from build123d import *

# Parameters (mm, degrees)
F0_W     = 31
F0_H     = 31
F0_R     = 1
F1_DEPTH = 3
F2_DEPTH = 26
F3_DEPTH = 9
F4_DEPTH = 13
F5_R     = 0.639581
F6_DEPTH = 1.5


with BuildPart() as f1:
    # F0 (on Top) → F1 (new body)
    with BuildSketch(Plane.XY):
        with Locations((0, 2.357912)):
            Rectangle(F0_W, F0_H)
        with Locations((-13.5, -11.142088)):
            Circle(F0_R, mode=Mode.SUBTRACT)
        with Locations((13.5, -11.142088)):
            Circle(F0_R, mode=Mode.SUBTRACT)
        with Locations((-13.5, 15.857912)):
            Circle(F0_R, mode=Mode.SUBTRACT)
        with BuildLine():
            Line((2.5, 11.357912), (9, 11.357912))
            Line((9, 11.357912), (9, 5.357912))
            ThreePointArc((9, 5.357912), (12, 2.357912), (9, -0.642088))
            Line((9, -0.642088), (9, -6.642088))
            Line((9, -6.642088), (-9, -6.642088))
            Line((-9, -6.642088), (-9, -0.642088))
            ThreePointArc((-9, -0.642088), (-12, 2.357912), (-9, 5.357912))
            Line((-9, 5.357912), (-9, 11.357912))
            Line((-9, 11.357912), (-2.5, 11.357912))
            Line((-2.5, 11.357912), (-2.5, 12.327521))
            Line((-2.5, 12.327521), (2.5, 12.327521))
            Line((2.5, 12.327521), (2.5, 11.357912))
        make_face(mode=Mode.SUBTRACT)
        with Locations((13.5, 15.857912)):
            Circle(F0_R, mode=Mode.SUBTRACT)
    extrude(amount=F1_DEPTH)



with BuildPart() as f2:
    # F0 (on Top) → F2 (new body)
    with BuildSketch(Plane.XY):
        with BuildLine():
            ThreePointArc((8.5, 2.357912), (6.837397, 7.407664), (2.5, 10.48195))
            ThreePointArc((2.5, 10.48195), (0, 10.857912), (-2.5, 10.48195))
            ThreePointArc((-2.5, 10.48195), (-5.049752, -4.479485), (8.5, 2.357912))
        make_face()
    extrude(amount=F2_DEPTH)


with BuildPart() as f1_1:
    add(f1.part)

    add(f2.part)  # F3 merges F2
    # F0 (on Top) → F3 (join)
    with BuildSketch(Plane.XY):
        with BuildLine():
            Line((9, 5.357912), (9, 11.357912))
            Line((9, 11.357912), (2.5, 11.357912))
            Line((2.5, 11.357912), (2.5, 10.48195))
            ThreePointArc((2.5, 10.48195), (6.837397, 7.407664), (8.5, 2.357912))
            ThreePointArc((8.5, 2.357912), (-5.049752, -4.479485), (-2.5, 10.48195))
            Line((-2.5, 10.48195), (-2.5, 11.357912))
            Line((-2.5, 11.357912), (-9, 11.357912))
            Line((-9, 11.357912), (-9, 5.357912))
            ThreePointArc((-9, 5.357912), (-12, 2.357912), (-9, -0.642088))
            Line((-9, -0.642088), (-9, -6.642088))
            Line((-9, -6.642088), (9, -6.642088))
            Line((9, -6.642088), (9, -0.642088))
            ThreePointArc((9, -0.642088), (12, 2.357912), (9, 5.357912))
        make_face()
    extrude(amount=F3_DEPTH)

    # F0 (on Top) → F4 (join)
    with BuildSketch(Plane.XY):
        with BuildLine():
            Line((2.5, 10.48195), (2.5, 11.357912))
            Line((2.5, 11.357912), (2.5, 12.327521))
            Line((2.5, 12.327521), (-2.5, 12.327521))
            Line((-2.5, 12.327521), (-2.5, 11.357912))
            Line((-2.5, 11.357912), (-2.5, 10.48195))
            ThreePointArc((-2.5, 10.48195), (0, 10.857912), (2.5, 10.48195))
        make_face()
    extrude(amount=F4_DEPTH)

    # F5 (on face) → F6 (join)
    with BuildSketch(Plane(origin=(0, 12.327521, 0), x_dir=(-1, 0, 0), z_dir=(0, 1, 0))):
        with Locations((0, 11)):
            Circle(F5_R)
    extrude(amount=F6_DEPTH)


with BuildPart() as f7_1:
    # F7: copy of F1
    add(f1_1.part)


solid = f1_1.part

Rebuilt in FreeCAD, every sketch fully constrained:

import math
import FreeCAD as App
import Part
import Sketcher

V = App.Vector
Q = App.Units.Quantity


def add_polygon(sketch, points):
    """Adds a closed chain of lines whose ends are joined by coincident constraints."""
    first, n = sketch.GeometryCount, len(points)
    for a, b in zip(points, points[1:] + points[:1]):
        sketch.addGeometry(Part.LineSegment(App.Vector(*a, 0), App.Vector(*b, 0)), False)
    for i in range(n):
        sketch.addConstraint(Sketcher.Constraint("Coincident", first + i, 2, first + (i + 1) % n, 1))

doc = App.newDocument("Part")
params = doc.addObject("Spreadsheet::Sheet", "Params")
for row, (alias, value) in enumerate([
    ("sketch1_diameter", "2 mm"),
    ("sketch1_radius", "3 mm"),
    ("sketch1_width", "31 mm"),
    ("sketch1_width2", "18 mm"),
    ("sketch1_width3", "5 mm"),
    ("pad1_length", "3 mm"),
    ("sketch2_radius", "8.500001 mm"),
    ("pad2_length", "26 mm"),
    ("sketch3_radius", "3 mm"),
    ("sketch3_radius2", "8.500001 mm"),
    ("sketch3_width", "18 mm"),
    ("sketch3_height", "6 mm"),
    ("sketch3_width2", "6.5 mm"),
    ("pad3_length", "9 mm"),
    ("sketch4_width", "5 mm"),
    ("pad4_length", "13 mm"),
    ("pad5_length", "1.5 mm"),
], start=1):
    params.set(f"A{row}", alias)
    params.set(f"B{row}", "=" + value)
    params.setAlias(f"B{row}", alias)

body = doc.addObject("PartDesign::Body", "Body")

sketch1 = body.newObject("Sketcher::SketchObject", "Sketch")
sketch1.AttachmentSupport = (doc.getObject("XY_Plane"), [""])
sketch1.MapMode = "FlatFace"
add_polygon(sketch1, [(-15.5, 17.9), (-15.5, -13.1), (15.5, -13.1), (15.5, 17.9)])
sketch1.addGeometry(Part.Circle(V(-13.5, -11.1, 0), V(0, 0, 1), 1), False)
sketch1.addGeometry(Part.Circle(V(13.5, -11.1, 0), V(0, 0, 1), 1), False)
sketch1.addGeometry(Part.Circle(V(-13.5, 15.9, 0), V(0, 0, 1), 1), False)
sketch1.addGeometry(Part.LineSegment(V(2.5, 12.3, 0), V(2.5, 11.4, 0)), False)
sketch1.addGeometry(Part.LineSegment(V(2.5, 11.4, 0), V(9, 11.4, 0)), False)
sketch1.addGeometry(Part.LineSegment(V(9, 11.4, 0), V(9, 5.4, 0)), False)
sketch1.addGeometry(Part.ArcOfCircle(Part.Circle(V(9, 2.4, 0), V(0, 0, 1), 3), math.radians(-90), math.radians(90)), False)
sketch1.addGeometry(Part.LineSegment(V(9, -0.6, 0), V(9, -6.6, 0)), False)
sketch1.addGeometry(Part.LineSegment(V(9, -6.6, 0), V(-9, -6.6, 0)), False)
sketch1.addGeometry(Part.LineSegment(V(-9, -6.6, 0), V(-9, -0.6, 0)), False)
sketch1.addGeometry(Part.ArcOfCircle(Part.Circle(V(-9, 2.4, 0), V(0, 0, 1), 3), math.radians(90), math.radians(270)), False)
sketch1.addGeometry(Part.LineSegment(V(-9, 5.4, 0), V(-9, 11.4, 0)), False)
sketch1.addGeometry(Part.LineSegment(V(-9, 11.4, 0), V(-2.5, 11.4, 0)), False)
sketch1.addGeometry(Part.LineSegment(V(-2.5, 11.4, 0), V(-2.5, 12.3, 0)), False)
sketch1.addGeometry(Part.LineSegment(V(-2.5, 12.3, 0), V(2.5, 12.3, 0)), False)
sketch1.addGeometry(Part.Circle(V(13.5, 15.9, 0), V(0, 0, 1), 1), False)
sketch1.addConstraint([
    Sketcher.Constraint("Coincident", 7, 2, 8, 1),
    Sketcher.Constraint("Coincident", 8, 2, 9, 1),
    Sketcher.Constraint("Coincident", 9, 2, 10, 2),
    Sketcher.Constraint("Coincident", 10, 1, 11, 1),
    Sketcher.Constraint("Coincident", 11, 2, 12, 1),
    Sketcher.Constraint("Coincident", 12, 2, 13, 1),
    Sketcher.Constraint("Coincident", 13, 2, 14, 2),
    Sketcher.Constraint("Coincident", 14, 1, 15, 1),
    Sketcher.Constraint("Coincident", 15, 2, 16, 1),
    Sketcher.Constraint("Coincident", 16, 2, 17, 1),
    Sketcher.Constraint("Coincident", 17, 2, 18, 1),
    Sketcher.Constraint("Coincident", 18, 2, 7, 1),
    Sketcher.Constraint("Vertical", 0),
    Sketcher.Constraint("Horizontal", 1),
    Sketcher.Constraint("Vertical", 2),
    Sketcher.Constraint("Horizontal", 3),
    Sketcher.Constraint("Vertical", 7),
    Sketcher.Constraint("Horizontal", 8),
    Sketcher.Constraint("Vertical", 9),
    Sketcher.Constraint("Vertical", 11),
    Sketcher.Constraint("Horizontal", 12),
    Sketcher.Constraint("Vertical", 13),
    Sketcher.Constraint("Vertical", 15),
    Sketcher.Constraint("Horizontal", 16),
    Sketcher.Constraint("Vertical", 17),
    Sketcher.Constraint("Horizontal", 18),
    Sketcher.Constraint("Equal", 4, 5),
    Sketcher.Constraint("Equal", 5, 6),
    Sketcher.Constraint("Equal", 10, 14),
    Sketcher.Constraint("Equal", 6, 19),
    Sketcher.Constraint("Symmetric", 4, 3, 5, 3, -2),
    Sketcher.Constraint("Symmetric", 10, 3, 14, 3, -2),
    Sketcher.Constraint("Symmetric", 6, 3, 19, 3, -2),
    Sketcher.Constraint("Symmetric", 8, 2, 15, 2, -2),
    Sketcher.Constraint("Vertical", 4, 3, 6, 3),
    Sketcher.Constraint("Vertical", 10, 3, 8, 2),
    Sketcher.Constraint("Vertical", 9, 2, 10, 1),
    Sketcher.Constraint("Vertical", 14, 3, 12, 2),
    Sketcher.Constraint("Equal", 8, 16),
    Sketcher.Constraint("Equal", 3, 0),
    Sketcher.Constraint("Equal", 9, 11),
    Sketcher.Constraint("Diameter", 4, Q("2 mm")),
    Sketcher.Constraint("Radius", 10, Q("3 mm")),
    Sketcher.Constraint("DistanceX", 1, 1, 1, 2, Q("31 mm")),
    Sketcher.Constraint("DistanceX", 12, 2, 12, 1, Q("18 mm")),
    Sketcher.Constraint("DistanceX", 18, 1, 18, 2, Q("5 mm")),
    Sketcher.Constraint("DistanceY", 9, 2, 9, 1, Q("6 mm")),
    Sketcher.Constraint("DistanceX", 4, 3, 5, 3, Q("27 mm")),
    Sketcher.Constraint("DistanceY", 4, 3, 6, 3, Q("27 mm")),
    Sketcher.Constraint("DistanceX", 0, 2, 4, 3, Q("2 mm")),
    Sketcher.Constraint("DistanceY", 0, 2, 4, 3, Q("2 mm")),
    Sketcher.Constraint("DistanceY", 5, 3, 10, 3, Q("13.5 mm")),
    Sketcher.Constraint("DistanceY", 7, 2, 7, 1, Q("0.969609 mm")),
    Sketcher.Constraint("DistanceY", -1, 1, 10, 3, Q("2.357912 mm")),
])
sketch1.setExpression("Constraints[45]", "Params.sketch1_diameter")
sketch1.setExpression("Constraints[46]", "Params.sketch1_radius")
sketch1.setExpression("Constraints[47]", "Params.sketch1_width")
sketch1.setExpression("Constraints[48]", "Params.sketch1_width2")
sketch1.setExpression("Constraints[49]", "Params.sketch1_width3")
pad1 = body.newObject("PartDesign::Pad", "Pad")
pad1.Profile = sketch1
pad1.setExpression("Length", "Params.pad1_length")
body2 = doc.addObject("PartDesign::Body", "Body001")

sketch2 = body2.newObject("Sketcher::SketchObject", "Sketch001")
sketch2.AttachmentSupport = (doc.getObject("XY_Plane001"), [""])
sketch2.MapMode = "FlatFace"
sketch2.addGeometry([
    Part.ArcOfCircle(Part.Circle(V(0, 2, 0), V(0, 0, 1), 9), math.radians(0), math.radians(73)),
    Part.ArcOfCircle(Part.Circle(V(0, 2, 0), V(0, 0, 1), 8), math.radians(73), math.radians(107)),
    Part.ArcOfCircle(Part.Circle(V(0, 2, 0), V(0, 0, 1), 8), math.radians(107), math.radians(360)),
], False)
sketch2.addConstraint([
    Sketcher.Constraint("Tangent", 0, 2, 1, 1),
    Sketcher.Constraint("Tangent", 1, 2, 2, 1),
    Sketcher.Constraint("Tangent", 2, 2, 0, 1),
    Sketcher.Constraint("Symmetric", 0, 2, 1, 2, -2),
    Sketcher.Constraint("Horizontal", 0, 3, 2, 2),
    Sketcher.Constraint("Radius", 0, Q("8.500001 mm")),
    Sketcher.Constraint("DistanceX", 1, 2, 0, 2, Q("5 mm")),
    Sketcher.Constraint("DistanceY", -1, 1, 0, 3, Q("2.357911 mm")),
])
sketch2.setExpression("Constraints[5]", "Params.sketch2_radius")
pad2 = body2.newObject("PartDesign::Pad", "Pad001")
pad2.Profile = sketch2
pad2.setExpression("Length", "Params.pad2_length")
body.AllowCompound = True
doc.recompute()

boolean = body.newObject("PartDesign::Boolean", "Boolean")
boolean.Type = "Fuse"
boolean.addObjects([body2])

sketch3 = body.newObject("Sketcher::SketchObject", "Sketch002")
sketch3.AttachmentSupport = (doc.getObject("XY_Plane"), [""])
sketch3.MapMode = "FlatFace"
sketch3.addGeometry([
    Part.LineSegment(V(9, 5.4, 0), V(9, 11.4, 0)),
    Part.LineSegment(V(9, 11.4, 0), V(2.5, 11.4, 0)),
    Part.LineSegment(V(2.5, 11.4, 0), V(2.5, 10.5, 0)),
    Part.ArcOfCircle(Part.Circle(V(0, 2.4, 0), V(0, 0, 1), 8.5), math.radians(0), math.radians(73)),
    Part.ArcOfCircle(Part.Circle(V(0, 2.4, 0), V(0, 0, 1), 8.5), math.radians(107), math.radians(360)),
    Part.LineSegment(V(-2.5, 10.5, 0), V(-2.5, 11.4, 0)),
    Part.LineSegment(V(-2.5, 11.4, 0), V(-9, 11.4, 0)),
    Part.LineSegment(V(-9, 11.4, 0), V(-9, 5.4, 0)),
    Part.ArcOfCircle(Part.Circle(V(-9, 2.4, 0), V(0, 0, 1), 3), math.radians(90), math.radians(270)),
    Part.LineSegment(V(-9, -0.6, 0), V(-9, -6.6, 0)),
    Part.LineSegment(V(-9, -6.6, 0), V(9, -6.6, 0)),
    Part.LineSegment(V(9, -6.6, 0), V(9, -0.6, 0)),
    Part.ArcOfCircle(Part.Circle(V(9, 2.4, 0), V(0, 0, 1), 3), math.radians(-90), math.radians(90)),
], False)
sketch3.addConstraint([
    Sketcher.Constraint("Coincident", 0, 2, 1, 1),
    Sketcher.Constraint("Coincident", 1, 2, 2, 1),
    Sketcher.Constraint("Coincident", 2, 2, 3, 2),
    Sketcher.Constraint("Tangent", 3, 1, 4, 2),
    Sketcher.Constraint("Coincident", 4, 1, 5, 1),
    Sketcher.Constraint("Coincident", 5, 2, 6, 1),
    Sketcher.Constraint("Coincident", 6, 2, 7, 1),
    Sketcher.Constraint("Coincident", 7, 2, 8, 1),
    Sketcher.Constraint("Coincident", 8, 2, 9, 1),
    Sketcher.Constraint("Coincident", 9, 2, 10, 1),
    Sketcher.Constraint("Coincident", 10, 2, 11, 1),
    Sketcher.Constraint("Coincident", 11, 2, 12, 1),
    Sketcher.Constraint("Coincident", 12, 2, 0, 1),
    Sketcher.Constraint("Vertical", 0),
    Sketcher.Constraint("Horizontal", 1),
    Sketcher.Constraint("Vertical", 2),
    Sketcher.Constraint("Vertical", 5),
    Sketcher.Constraint("Horizontal", 6),
    Sketcher.Constraint("Vertical", 7),
    Sketcher.Constraint("Vertical", 9),
    Sketcher.Constraint("Horizontal", 10),
    Sketcher.Constraint("Vertical", 11),
    Sketcher.Constraint("Equal", 3, 4),
    Sketcher.Constraint("Equal", 8, 12),
    Sketcher.Constraint("Symmetric", 8, 3, 12, 3, -2),
    Sketcher.Constraint("Symmetric", 2, 2, 4, 1, -2),
    Sketcher.Constraint("Symmetric", 0, 2, 6, 2, -2),
    Sketcher.Constraint("Horizontal", 4, 3, 8, 3),
    Sketcher.Constraint("Horizontal", 12, 3, 3, 1),
    Sketcher.Constraint("Vertical", 12, 3, 0, 2),
    Sketcher.Constraint("Vertical", 7, 2, 8, 2),
    Sketcher.Constraint("Vertical", 0, 2, 10, 2),
    Sketcher.Constraint("Equal", 7, 9),
    Sketcher.Constraint("Radius", 8, Q("3 mm")),
    Sketcher.Constraint("Radius", 3, Q("8.500001 mm")),
    Sketcher.Constraint("DistanceX", 10, 1, 10, 2, Q("18 mm")),
    Sketcher.Constraint("DistanceY", 0, 1, 0, 2, Q("6 mm")),
    Sketcher.Constraint("DistanceX", 1, 2, 1, 1, Q("6.5 mm")),
    Sketcher.Constraint("DistanceY", -1, 1, 3, 3, Q("2.357911 mm")),
])
sketch3.setExpression("Constraints[33]", "Params.sketch3_radius")
sketch3.setExpression("Constraints[34]", "Params.sketch3_radius2")
sketch3.setExpression("Constraints[35]", "Params.sketch3_width")
sketch3.setExpression("Constraints[36]", "Params.sketch3_height")
sketch3.setExpression("Constraints[37]", "Params.sketch3_width2")
pad3 = body.newObject("PartDesign::Pad", "Pad002")
pad3.Profile = sketch3
pad3.setExpression("Length", "Params.pad3_length")

sketch4 = body.newObject("Sketcher::SketchObject", "Sketch003")
sketch4.AttachmentSupport = (doc.getObject("XY_Plane"), [""])
sketch4.MapMode = "FlatFace"
sketch4.addGeometry([
    Part.LineSegment(V(2.5, 10.5, 0), V(2.5, 12.3, 0)),
    Part.LineSegment(V(2.5, 12.3, 0), V(-2.5, 12.3, 0)),
    Part.LineSegment(V(-2.5, 12.3, 0), V(-2.5, 10.5, 0)),
    Part.ArcOfCircle(Part.Circle(V(0, 2.4, 0), V(0, 0, 1), 8.5), math.radians(73), math.radians(107)),
], False)
sketch4.addConstraint([
    Sketcher.Constraint("Coincident", 0, 2, 1, 1),
    Sketcher.Constraint("Coincident", 1, 2, 2, 1),
    Sketcher.Constraint("Coincident", 2, 2, 3, 2),
    Sketcher.Constraint("Coincident", 3, 1, 0, 1),
    Sketcher.Constraint("Vertical", 0),
    Sketcher.Constraint("Horizontal", 1),
    Sketcher.Constraint("Vertical", 2),
    Sketcher.Constraint("Symmetric", 2, 2, 3, 1, -2),
    Sketcher.Constraint("DistanceX", 1, 2, 1, 1, Q("5 mm")),
    Sketcher.Constraint("Radius", 3, Q("8.499991 mm")),
    Sketcher.Constraint("DistanceY", 0, 1, 0, 2, Q("1.845571 mm")),
    Sketcher.Constraint("DistanceY", -1, 1, 3, 3, Q("2.357921 mm")),
])
sketch4.setExpression("Constraints[8]", "Params.sketch4_width")
pad4 = body.newObject("PartDesign::Pad", "Pad003")
pad4.Profile = sketch4
pad4.setExpression("Length", "Params.pad4_length")

sketch5 = body.newObject("Sketcher::SketchObject", "Sketch004")
sketch5.AttachmentSupport = (doc.getObject("XZ_Plane"), [""])
sketch5.MapMode = "FlatFace"
sketch5.AttachmentOffset = App.Placement(V(0, 0, -12.327521), App.Rotation())
sketch5.addGeometry(Part.Circle(V(0, 11, 0), V(0, 0, 1), 0.6), False)
sketch5.addConstraint([
    Sketcher.Constraint("PointOnObject", 0, 3, -2),
    Sketcher.Constraint("DistanceY", -1, 1, 0, 3, Q("11 mm")),
    Sketcher.Constraint("Diameter", 0, Q("1.279162 mm")),
])
pad5 = body.newObject("PartDesign::Pad", "Pad004")
pad5.Profile = sketch5
pad5.setExpression("Length", "Params.pad5_length")
pad5.Reversed = True
body3 = doc.addObject("PartDesign::Body", "Body002")
doc.recompute()

body3.BaseFeature = body
doc.recompute()
body.Visibility = False

doc.recompute()
